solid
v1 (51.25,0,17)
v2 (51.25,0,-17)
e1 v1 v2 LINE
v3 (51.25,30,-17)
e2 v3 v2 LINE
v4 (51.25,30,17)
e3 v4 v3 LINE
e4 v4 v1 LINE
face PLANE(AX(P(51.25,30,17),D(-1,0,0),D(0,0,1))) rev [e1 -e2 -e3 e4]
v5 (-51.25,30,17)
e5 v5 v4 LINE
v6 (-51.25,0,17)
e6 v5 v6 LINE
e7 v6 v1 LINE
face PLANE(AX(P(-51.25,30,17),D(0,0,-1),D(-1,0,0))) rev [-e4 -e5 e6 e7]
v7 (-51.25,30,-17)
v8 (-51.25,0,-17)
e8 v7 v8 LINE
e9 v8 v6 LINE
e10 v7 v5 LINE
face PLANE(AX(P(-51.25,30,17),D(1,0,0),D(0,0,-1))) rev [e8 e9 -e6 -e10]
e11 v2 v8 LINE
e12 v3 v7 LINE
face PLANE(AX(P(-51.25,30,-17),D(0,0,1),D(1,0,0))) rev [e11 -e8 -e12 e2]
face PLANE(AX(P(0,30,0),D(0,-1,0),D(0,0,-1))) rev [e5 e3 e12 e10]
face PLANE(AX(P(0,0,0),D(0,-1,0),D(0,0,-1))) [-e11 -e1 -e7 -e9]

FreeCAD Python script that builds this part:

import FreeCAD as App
import Part
import Sketcher
from FreeCAD import Vector

doc = App.newDocument("Part")
body = doc.addObject("PartDesign::Body", "Body")

# Sketch on XZ plane
sketch1 = body.newObject("Sketcher::SketchObject", "Sketch")
sketch1.AttachmentSupport = (doc.getObject("XZ_Plane"), [""])
sketch1.MapMode = "FlatFace"
sketch1.addGeometry([
    Part.LineSegment(Vector(-51, -17, 0), Vector(-51, 17, 0)),
    Part.LineSegment(Vector(-51, 17, 0), Vector(51, 17, 0)),
    Part.LineSegment(Vector(51, 17, 0), Vector(51, -17, 0)),
    Part.LineSegment(Vector(51, -17, 0), Vector(-51, -17, 0)),
], False)
sketch1.addConstraint([
    Sketcher.Constraint("Coincident", 0, 2, 1, 1),
    Sketcher.Constraint("Coincident", 1, 2, 2, 1),
    Sketcher.Constraint("Coincident", 2, 2, 3, 1),
    Sketcher.Constraint("Coincident", 3, 2, 0, 1),
    Sketcher.Constraint("Vertical", 0),
    Sketcher.Constraint("Horizontal", 1),
    Sketcher.Constraint("Vertical", 2),
    Sketcher.Constraint("Horizontal", 3),
    Sketcher.Constraint("Symmetric", 0, 2, 2, 2, -1, 1),
    Sketcher.Constraint("DistanceY", 0, 1, 0, 2, 34.0),
    Sketcher.Constraint("DistanceX", 1, 1, 1, 2, 102.5),
])
pad1 = body.newObject("PartDesign::Pad", "Pad")
pad1.Profile = sketch1
pad1.Length = 30
pad1.Reversed = True

doc.recompute()
